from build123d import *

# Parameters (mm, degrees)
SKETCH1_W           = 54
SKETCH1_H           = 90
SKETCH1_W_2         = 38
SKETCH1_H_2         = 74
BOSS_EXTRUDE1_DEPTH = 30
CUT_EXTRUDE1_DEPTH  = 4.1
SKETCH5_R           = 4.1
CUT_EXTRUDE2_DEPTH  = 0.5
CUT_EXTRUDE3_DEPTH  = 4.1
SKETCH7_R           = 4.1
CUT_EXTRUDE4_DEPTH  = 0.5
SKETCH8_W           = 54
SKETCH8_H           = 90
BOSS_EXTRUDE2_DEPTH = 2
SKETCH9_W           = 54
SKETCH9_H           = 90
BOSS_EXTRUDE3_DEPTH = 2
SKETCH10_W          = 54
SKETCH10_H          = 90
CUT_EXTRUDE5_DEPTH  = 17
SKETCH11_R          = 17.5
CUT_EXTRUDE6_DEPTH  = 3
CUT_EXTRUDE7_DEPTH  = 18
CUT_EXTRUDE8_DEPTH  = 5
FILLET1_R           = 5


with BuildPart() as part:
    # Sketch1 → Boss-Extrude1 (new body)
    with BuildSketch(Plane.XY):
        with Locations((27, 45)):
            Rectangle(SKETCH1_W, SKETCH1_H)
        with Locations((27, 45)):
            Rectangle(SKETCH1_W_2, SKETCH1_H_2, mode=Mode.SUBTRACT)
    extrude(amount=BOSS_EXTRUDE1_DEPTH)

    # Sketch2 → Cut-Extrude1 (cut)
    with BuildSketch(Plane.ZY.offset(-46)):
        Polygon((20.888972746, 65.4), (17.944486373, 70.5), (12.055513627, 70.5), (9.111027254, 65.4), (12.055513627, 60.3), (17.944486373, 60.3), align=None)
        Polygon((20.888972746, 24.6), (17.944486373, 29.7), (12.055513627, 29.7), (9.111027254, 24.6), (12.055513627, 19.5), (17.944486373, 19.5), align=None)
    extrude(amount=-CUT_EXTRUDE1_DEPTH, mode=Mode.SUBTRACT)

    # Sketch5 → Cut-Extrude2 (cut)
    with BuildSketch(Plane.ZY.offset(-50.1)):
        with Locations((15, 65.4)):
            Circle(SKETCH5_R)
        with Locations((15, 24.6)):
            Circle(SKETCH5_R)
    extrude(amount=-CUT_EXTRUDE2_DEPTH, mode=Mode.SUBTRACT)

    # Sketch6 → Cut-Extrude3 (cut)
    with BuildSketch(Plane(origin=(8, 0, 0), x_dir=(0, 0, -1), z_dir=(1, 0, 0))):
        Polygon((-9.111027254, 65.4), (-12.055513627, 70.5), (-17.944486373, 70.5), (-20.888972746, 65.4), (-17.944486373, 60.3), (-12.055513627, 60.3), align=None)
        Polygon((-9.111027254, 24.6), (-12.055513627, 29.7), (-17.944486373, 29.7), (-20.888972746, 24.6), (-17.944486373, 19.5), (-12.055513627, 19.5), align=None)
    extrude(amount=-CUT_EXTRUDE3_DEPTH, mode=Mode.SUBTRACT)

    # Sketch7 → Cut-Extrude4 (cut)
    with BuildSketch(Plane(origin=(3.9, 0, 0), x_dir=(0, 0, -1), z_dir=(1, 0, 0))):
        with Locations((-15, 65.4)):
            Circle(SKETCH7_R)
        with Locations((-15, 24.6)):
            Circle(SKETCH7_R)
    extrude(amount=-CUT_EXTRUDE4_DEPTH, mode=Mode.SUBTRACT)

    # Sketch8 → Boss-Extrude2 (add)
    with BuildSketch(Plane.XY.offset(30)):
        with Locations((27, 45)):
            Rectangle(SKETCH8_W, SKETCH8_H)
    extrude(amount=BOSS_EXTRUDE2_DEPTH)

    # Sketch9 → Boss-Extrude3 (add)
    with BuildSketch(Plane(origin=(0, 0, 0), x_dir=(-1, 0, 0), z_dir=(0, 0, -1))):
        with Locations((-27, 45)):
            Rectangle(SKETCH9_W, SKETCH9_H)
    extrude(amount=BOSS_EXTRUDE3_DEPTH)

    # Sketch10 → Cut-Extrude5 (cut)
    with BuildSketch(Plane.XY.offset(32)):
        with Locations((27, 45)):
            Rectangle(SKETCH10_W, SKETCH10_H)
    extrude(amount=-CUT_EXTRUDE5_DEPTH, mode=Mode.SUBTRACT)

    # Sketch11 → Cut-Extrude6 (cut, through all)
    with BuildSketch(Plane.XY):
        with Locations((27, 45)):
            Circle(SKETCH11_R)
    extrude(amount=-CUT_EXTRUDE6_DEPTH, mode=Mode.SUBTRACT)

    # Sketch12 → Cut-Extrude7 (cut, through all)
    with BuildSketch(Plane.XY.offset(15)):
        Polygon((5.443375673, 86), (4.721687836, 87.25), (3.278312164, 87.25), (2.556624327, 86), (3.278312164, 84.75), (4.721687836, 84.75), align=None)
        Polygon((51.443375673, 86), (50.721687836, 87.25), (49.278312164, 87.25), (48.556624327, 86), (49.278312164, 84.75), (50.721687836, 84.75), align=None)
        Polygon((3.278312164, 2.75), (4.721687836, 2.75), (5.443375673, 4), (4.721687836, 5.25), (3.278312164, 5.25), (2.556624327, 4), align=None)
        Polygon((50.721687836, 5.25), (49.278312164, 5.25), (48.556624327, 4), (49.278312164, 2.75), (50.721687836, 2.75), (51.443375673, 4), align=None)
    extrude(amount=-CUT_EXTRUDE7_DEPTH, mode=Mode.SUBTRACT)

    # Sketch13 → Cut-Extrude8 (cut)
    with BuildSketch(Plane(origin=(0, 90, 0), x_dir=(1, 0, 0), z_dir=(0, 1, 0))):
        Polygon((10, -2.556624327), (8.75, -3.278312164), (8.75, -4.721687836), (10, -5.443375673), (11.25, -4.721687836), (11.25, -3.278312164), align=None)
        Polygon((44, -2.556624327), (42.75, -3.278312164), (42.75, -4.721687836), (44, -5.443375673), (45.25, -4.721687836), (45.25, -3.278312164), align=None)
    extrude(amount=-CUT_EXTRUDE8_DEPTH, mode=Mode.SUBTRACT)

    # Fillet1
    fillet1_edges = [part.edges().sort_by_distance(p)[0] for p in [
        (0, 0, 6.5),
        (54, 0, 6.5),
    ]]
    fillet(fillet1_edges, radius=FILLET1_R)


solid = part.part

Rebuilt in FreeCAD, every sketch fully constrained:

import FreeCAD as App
import Part
import Sketcher
Q = App.Units.Quantity


def edges_at(feature, points):
    """Names of the edges that pass closest to the given points."""
    edges = feature.Shape.Edges
    near = lambda p: min(range(len(edges)), key=lambda i: edges[i].distToShape(Part.Vertex(*p))[0])
    return sorted({f"Edge{near(p) + 1}" for p in points})


def add_polygon(sketch, points):
    """Adds a closed chain of lines whose ends are joined by coincident constraints."""
    first, n = sketch.GeometryCount, len(points)
    for a, b in zip(points, points[1:] + points[:1]):
        sketch.addGeometry(Part.LineSegment(App.Vector(*a, 0), App.Vector(*b, 0)), False)
    for i in range(n):
        sketch.addConstraint(Sketcher.Constraint("Coincident", first + i, 2, first + (i + 1) % n, 1))

doc = App.newDocument("Part")
params = doc.addObject("Spreadsheet::Sheet", "Params")
for row, (alias, value) in enumerate([
    ("sketch1_width", "54 mm"),
    ("sketch1_width2", "38 mm"),
    ("sketch1_height", "90 mm"),
    ("sketch1_height2", "74 mm"),
    ("pad1_length", "30 mm"),
    ("pocket1_length", "4.1 mm"),
    ("sketch3_diameter", "8.2 mm"),
    ("pocket2_length", "0.5 mm"),
    ("pocket3_length", "4.1 mm"),
    ("sketch5_diameter", "8.2 mm"),
    ("pocket4_length", "0.5 mm"),
    ("sketch6_width", "54 mm"),
    ("sketch6_height", "90 mm"),
    ("pad2_length", "2 mm"),
    ("sketch7_width", "54 mm"),
    ("sketch7_height", "90 mm"),
    ("pad3_length", "2 mm"),
    ("sketch8_width", "54 mm"),
    ("sketch8_height", "90 mm"),
    ("pocket5_length", "17 mm"),
    ("sketch9_diameter", "35 mm"),
    ("pocket8_length", "5 mm"),
    ("fillet_radius", "5 mm"),
], start=1):
    params.set(f"A{row}", alias)
    params.set(f"B{row}", "=" + value)
    params.setAlias(f"B{row}", alias)

body = doc.addObject("PartDesign::Body", "Body")

# Sketch on XY plane
sketch1 = body.newObject("Sketcher::SketchObject", "Sketch")
sketch1.AttachmentSupport = (doc.getObject("XY_Plane"), [""])
sketch1.MapMode = "FlatFace"
add_polygon(sketch1, [(0, 90), (0, 0), (54, 0), (54, 90)])  # lines 0-3
add_polygon(sketch1, [(46, 8), (8, 8), (8, 82), (46, 82)])  # lines 4-7
sketch1.addConstraint(Sketcher.Constraint("Vertical", 0))
sketch1.addConstraint(Sketcher.Constraint("Horizontal", 1))
sketch1.addConstraint(Sketcher.Constraint("Vertical", 2))
sketch1.addConstraint(Sketcher.Constraint("Horizontal", 3))
sketch1.addConstraint(Sketcher.Constraint("Horizontal", 4))
sketch1.addConstraint(Sketcher.Constraint("Vertical", 5))
sketch1.addConstraint(Sketcher.Constraint("Horizontal", 6))
sketch1.addConstraint(Sketcher.Constraint("Vertical", 7))
sketch1.addConstraint(Sketcher.Constraint("Coincident", 0, 2, -1, 1))
sketch1.addConstraint(Sketcher.Constraint("DistanceX", 1, 1, 1, 2, 54.0))
sketch1.addConstraint(Sketcher.Constraint("DistanceX", 4, 2, 4, 1, 38.0))
sketch1.addConstraint(Sketcher.Constraint("DistanceY", 0, 2, 0, 1, 90.0))
sketch1.addConstraint(Sketcher.Constraint("DistanceY", 5, 1, 5, 2, 74.0))
sketch1.addConstraint(Sketcher.Constraint("DistanceX", -1, 1, 4, 2, 8.0))
sketch1.addConstraint(Sketcher.Constraint("DistanceY", -1, 1, 4, 2, 8.0))
sketch1.setExpression("Constraints[17]", "Params.sketch1_width")
sketch1.setExpression("Constraints[18]", "Params.sketch1_width2")
sketch1.setExpression("Constraints[19]", "Params.sketch1_height")
sketch1.setExpression("Constraints[20]", "Params.sketch1_height2")
pad1 = body.newObject("PartDesign::Pad", "Pad")
pad1.Profile = sketch1
pad1.setExpression("Length", "Params.pad1_length")

# Sketch on YZ plane
sketch2 = body.newObject("Sketcher::SketchObject", "Sketch001")
sketch2.AttachmentSupport = (doc.getObject("YZ_Plane"), [""])
sketch2.MapMode = "FlatFace"
sketch2.AttachmentOffset = App.Placement(App.Vector(0, 0, 46), App.Rotation())
add_polygon(sketch2, [(65.4, 20.888973), (70.5, 17.944486), (70.5, 12.055514), (65.4, 9.111027), (60.3, 12.055514), (60.3, 17.944486)])  # lines 0-5
add_polygon(sketch2, [(24.6, 20.888973), (29.7, 17.944486), (29.7, 12.055514), (24.6, 9.111027), (19.5, 12.055514), (19.5, 17.944486)])  # lines 6-11
sketch2.addConstraint(Sketcher.Constraint("Vertical", 1))
sketch2.addConstraint(Sketcher.Constraint("Vertical", 4))
sketch2.addConstraint(Sketcher.Constraint("Vertical", 7))
sketch2.addConstraint(Sketcher.Constraint("Vertical", 10))
sketch2.addConstraint(Sketcher.Constraint("Parallel", 0, 3))
sketch2.addConstraint(Sketcher.Constraint("Parallel", 2, 5))
sketch2.addConstraint(Sketcher.Constraint("Parallel", 3, 6))
sketch2.addConstraint(Sketcher.Constraint("Parallel", 5, 8))
sketch2.addConstraint(Sketcher.Constraint("Parallel", 6, 9))
sketch2.addConstraint(Sketcher.Constraint("Parallel", 8, 11))
sketch2.addConstraint(Sketcher.Constraint("Horizontal", 1, 2, 3, 2))
sketch2.addConstraint(Sketcher.Constraint("Horizontal", 0, 2, 4, 2))
sketch2.addConstraint(Sketcher.Constraint("Horizontal", 4, 2, 6, 2))
sketch2.addConstraint(Sketcher.Constraint("Horizontal", 3, 2, 7, 2))
sketch2.addConstraint(Sketcher.Constraint("Horizontal", 2, 2, 8, 2))
sketch2.addConstraint(Sketcher.Constraint("Horizontal", 7, 2, 9, 2))
sketch2.addConstraint(Sketcher.Constraint("Horizontal", 6, 2, 10, 2))
sketch2.addConstraint(Sketcher.Constraint("Vertical", 2, 2, 5, 2))
sketch2.addConstraint(Sketcher.Constraint("Angle", 0, Q("-30 deg")))
sketch2.addConstraint(Sketcher.Constraint("DistanceX", -1, 1, 0, 2, 70.5))
sketch2.addConstraint(Sketcher.Constraint("DistanceX", -1, 1, 2, 2, 65.4))
sketch2.addConstraint(Sketcher.Constraint("DistanceX", -1, 1, 6, 2, 29.7))
sketch2.addConstraint(Sketcher.Constraint("DistanceY", 1, 2, 1, 1, 5.888973))
sketch2.addConstraint(Sketcher.Constraint("DistanceY", -1, 1, 0, 2, 17.944486))
pocket1 = body.newObject("PartDesign::Pocket", "Pocket")
pocket1.Profile = sketch2
pocket1.setExpression("Length", "Params.pocket1_length")
pocket1.Reversed = True

# Sketch on YZ plane
sketch3 = body.newObject("Sketcher::SketchObject", "Sketch002")
sketch3.AttachmentSupport = (doc.getObject("YZ_Plane"), [""])
sketch3.MapMode = "FlatFace"
sketch3.AttachmentOffset = App.Placement(App.Vector(0, 0, 50.1), App.Rotation())
sketch3.addGeometry(Part.Circle(App.Vector(65.4, 15, 0), App.Vector(0, 0, 1), 4.1), False)
sketch3.addGeometry(Part.Circle(App.Vector(24.6, 15, 0), App.Vector(0, 0, 1), 4.1), False)
sketch3.addConstraint(Sketcher.Constraint("Equal", 0, 1))
sketch3.addConstraint(Sketcher.Constraint("Horizontal", 0, 3, 1, 3))
sketch3.addConstraint(Sketcher.Constraint("Diameter", 0, 8.2))
sketch3.addConstraint(Sketcher.Constraint("DistanceY", -1, 1, 0, 3, 15.0))
sketch3.addConstraint(Sketcher.Constraint("DistanceX", -1, 1, 0, 3, 65.4))
sketch3.addConstraint(Sketcher.Constraint("DistanceX", -1, 1, 1, 3, 24.6))
sketch3.setExpression("Constraints[2]", "Params.sketch3_diameter")
pocket2 = body.newObject("PartDesign::Pocket", "Pocket001")
pocket2.Profile = sketch3
pocket2.setExpression("Length", "Params.pocket2_length")
pocket2.Reversed = True

# Sketch on YZ plane
sketch4 = body.newObject("Sketcher::SketchObject", "Sketch003")
sketch4.AttachmentSupport = (doc.getObject("YZ_Plane"), [""])
sketch4.MapMode = "FlatFace"
sketch4.AttachmentOffset = App.Placement(App.Vector(0, 0, 8), App.Rotation())
add_polygon(sketch4, [(65.4, 9.111027), (70.5, 12.055514), (70.5, 17.944486), (65.4, 20.888973), (60.3, 17.944486), (60.3, 12.055514)])  # lines 0-5
add_polygon(sketch4, [(24.6, 9.111027), (29.7, 12.055514), (29.7, 17.944486), (24.6, 20.888973), (19.5, 17.944486), (19.5, 12.055514)])  # lines 6-11
sketch4.addConstraint(Sketcher.Constraint("Vertical", 1))
sketch4.addConstraint(Sketcher.Constraint("Vertical", 4))
sketch4.addConstraint(Sketcher.Constraint("Vertical", 7))
sketch4.addConstraint(Sketcher.Constraint("Vertical", 10))
sketch4.addConstraint(Sketcher.Constraint("Parallel", 0, 3))
sketch4.addConstraint(Sketcher.Constraint("Parallel", 2, 5))
sketch4.addConstraint(Sketcher.Constraint("Parallel", 3, 6))
sketch4.addConstraint(Sketcher.Constraint("Parallel", 5, 8))
sketch4.addConstraint(Sketcher.Constraint("Parallel", 6, 9))
sketch4.addConstraint(Sketcher.Constraint("Parallel", 8, 11))
sketch4.addConstraint(Sketcher.Constraint("Horizontal", 1, 2, 3, 2))
sketch4.addConstraint(Sketcher.Constraint("Horizontal", 0, 2, 4, 2))
sketch4.addConstraint(Sketcher.Constraint("Horizontal", 4, 2, 6, 2))
sketch4.addConstraint(Sketcher.Constraint("Horizontal", 3, 2, 7, 2))
sketch4.addConstraint(Sketcher.Constraint("Horizontal", 2, 2, 8, 2))
sketch4.addConstraint(Sketcher.Constraint("Horizontal", 7, 2, 9, 2))
sketch4.addConstraint(Sketcher.Constraint("Horizontal", 6, 2, 10, 2))
sketch4.addConstraint(Sketcher.Constraint("Vertical", 2, 2, 5, 2))
sketch4.addConstraint(Sketcher.Constraint("Angle", 0, Q("30 deg")))
sketch4.addConstraint(Sketcher.Constraint("DistanceX", -1, 1, 0, 2, 70.5))
sketch4.addConstraint(Sketcher.Constraint("DistanceX", -1, 1, 2, 2, 65.4))
sketch4.addConstraint(Sketcher.Constraint("DistanceX", -1, 1, 6, 2, 29.7))
sketch4.addConstraint(Sketcher.Constraint("DistanceY", 1, 1, 1, 2, 5.888973))
sketch4.addConstraint(Sketcher.Constraint("DistanceY", -1, 1, 0, 2, 12.055514))
pocket3 = body.newObject("PartDesign::Pocket", "Pocket002")
pocket3.Profile = sketch4
pocket3.setExpression("Length", "Params.pocket3_length")

# Sketch on YZ plane
sketch5 = body.newObject("Sketcher::SketchObject", "Sketch004")
sketch5.AttachmentSupport = (doc.getObject("YZ_Plane"), [""])
sketch5.MapMode = "FlatFace"
sketch5.AttachmentOffset = App.Placement(App.Vector(0, 0, 3.9), App.Rotation())
sketch5.addGeometry(Part.Circle(App.Vector(65.4, 15, 0), App.Vector(0, 0, 1), 4.1), False)
sketch5.addGeometry(Part.Circle(App.Vector(24.6, 15, 0), App.Vector(0, 0, 1), 4.1), False)
sketch5.addConstraint(Sketcher.Constraint("Equal", 0, 1))
sketch5.addConstraint(Sketcher.Constraint("Horizontal", 0, 3, 1, 3))
sketch5.addConstraint(Sketcher.Constraint("Diameter", 0, 8.2))
sketch5.addConstraint(Sketcher.Constraint("DistanceY", -1, 1, 0, 3, 15.0))
sketch5.addConstraint(Sketcher.Constraint("DistanceX", -1, 1, 0, 3, 65.4))
sketch5.addConstraint(Sketcher.Constraint("DistanceX", -1, 1, 1, 3, 24.6))
sketch5.setExpression("Constraints[2]", "Params.sketch5_diameter")
pocket4 = body.newObject("PartDesign::Pocket", "Pocket003")
pocket4.Profile = sketch5
pocket4.setExpression("Length", "Params.pocket4_length")

# Sketch on XY plane
sketch6 = body.newObject("Sketcher::SketchObject", "Sketch005")
sketch6.AttachmentSupport = (doc.getObject("XY_Plane"), [""])
sketch6.MapMode = "FlatFace"
sketch6.AttachmentOffset = App.Placement(App.Vector(0, 0, 30), App.Rotation())
add_polygon(sketch6, [(0, 90), (0, 0), (54, 0), (54, 90)])  # lines 0-3
sketch6.addConstraint(Sketcher.Constraint("Vertical", 0))
sketch6.addConstraint(Sketcher.Constraint("Horizontal", 1))
sketch6.addConstraint(Sketcher.Constraint("Vertical", 2))
sketch6.addConstraint(Sketcher.Constraint("Horizontal", 3))
sketch6.addConstraint(Sketcher.Constraint("Coincident", 0, 2, -1, 1))
sketch6.addConstraint(Sketcher.Constraint("DistanceX", 1, 1, 1, 2, 54.0))
sketch6.addConstraint(Sketcher.Constraint("DistanceY", 0, 2, 0, 1, 90.0))
sketch6.setExpression("Constraints[9]", "Params.sketch6_width")
sketch6.setExpression("Constraints[10]", "Params.sketch6_height")
pad2 = body.newObject("PartDesign::Pad", "Pad001")
pad2.Profile = sketch6
pad2.setExpression("Length", "Params.pad2_length")

# Sketch on XY plane
sketch7 = body.newObject("Sketcher::SketchObject", "Sketch006")
sketch7.AttachmentSupport = (doc.getObject("XY_Plane"), [""])
sketch7.MapMode = "FlatFace"
add_polygon(sketch7, [(54, 90), (54, 0), (0, 0), (0, 90)])  # lines 0-3
sketch7.addConstraint(Sketcher.Constraint("Vertical", 0))
sketch7.addConstraint(Sketcher.Constraint("Horizontal", 1))
sketch7.addConstraint(Sketcher.Constraint("Vertical", 2))
sketch7.addConstraint(Sketcher.Constraint("Horizontal", 3))
sketch7.addConstraint(Sketcher.Constraint("Coincident", 1, 2, -1, 1))
sketch7.addConstraint(Sketcher.Constraint("DistanceX", 1, 2, 1, 1, 54.0))
sketch7.addConstraint(Sketcher.Constraint("DistanceY", 0, 2, 0, 1, 90.0))
sketch7.setExpression("Constraints[9]", "Params.sketch7_width")
sketch7.setExpression("Constraints[10]", "Params.sketch7_height")
pad3 = body.newObject("PartDesign::Pad", "Pad002")
pad3.Profile = sketch7
pad3.setExpression("Length", "Params.pad3_length")
pad3.Reversed = True

# Sketch on XY plane
sketch8 = body.newObject("Sketcher::SketchObject", "Sketch007")
sketch8.AttachmentSupport = (doc.getObject("XY_Plane"), [""])
sketch8.MapMode = "FlatFace"
sketch8.AttachmentOffset = App.Placement(App.Vector(0, 0, 32), App.Rotation())
add_polygon(sketch8, [(0, 90), (0, 0), (54, 0), (54, 90)])  # lines 0-3
sketch8.addConstraint(Sketcher.Constraint("Vertical", 0))
sketch8.addConstraint(Sketcher.Constraint("Horizontal", 1))
sketch8.addConstraint(Sketcher.Constraint("Vertical", 2))
sketch8.addConstraint(Sketcher.Constraint("Horizontal", 3))
sketch8.addConstraint(Sketcher.Constraint("Coincident", 0, 2, -1, 1))
sketch8.addConstraint(Sketcher.Constraint("DistanceX", 1, 1, 1, 2, 54.0))
sketch8.addConstraint(Sketcher.Constraint("DistanceY", 0, 2, 0, 1, 90.0))
sketch8.setExpression("Constraints[9]", "Params.sketch8_width")
sketch8.setExpression("Constraints[10]", "Params.sketch8_height")
pocket5 = body.newObject("PartDesign::Pocket", "Pocket004")
pocket5.Profile = sketch8
pocket5.setExpression("Length", "Params.pocket5_length")

# Sketch on XY plane
sketch9 = body.newObject("Sketcher::SketchObject", "Sketch008")
sketch9.AttachmentSupport = (doc.getObject("XY_Plane"), [""])
sketch9.MapMode = "FlatFace"
sketch9.addGeometry(Part.Circle(App.Vector(27, 45, 0), App.Vector(0, 0, 1), 17.5), False)
sketch9.addConstraint(Sketcher.Constraint("Diameter", 0, 35.0))
sketch9.addConstraint(Sketcher.Constraint("DistanceX", -1, 1, 0, 3, 27.0))
sketch9.addConstraint(Sketcher.Constraint("DistanceY", -1, 1, 0, 3, 45.0))
sketch9.setExpression("Constraints[0]", "Params.sketch9_diameter")
pocket6 = body.newObject("PartDesign::Pocket", "Pocket005")
pocket6.Profile = sketch9
pocket6.Type = "ThroughAll"

# Sketch on XY plane
sketch10 = body.newObject("Sketcher::SketchObject", "Sketch009")
sketch10.AttachmentSupport = (doc.getObject("XY_Plane"), [""])
sketch10.MapMode = "FlatFace"
sketch10.AttachmentOffset = App.Placement(App.Vector(0, 0, 15), App.Rotation())
add_polygon(sketch10, [(5.443376, 86), (4.721688, 87.25), (3.278312, 87.25), (2.556624, 86), (3.278312, 84.75), (4.721688, 84.75)])  # lines 0-5
add_polygon(sketch10, [(51.443376, 86), (50.721688, 87.25), (49.278312, 87.25), (48.556624, 86), (49.278312, 84.75), (50.721688, 84.75)])  # lines 6-11
add_polygon(sketch10, [(3.278312, 2.75), (4.721688, 2.75), (5.443376, 4), (4.721688, 5.25), (3.278312, 5.25), (2.556624, 4)])  # lines 12-17
add_polygon(sketch10, [(50.721688, 5.25), (49.278312, 5.25), (48.556624, 4), (49.278312, 2.75), (50.721688, 2.75), (51.443376, 4)])  # lines 18-23
sketch10.addConstraint(Sketcher.Constraint("Horizontal", 1))
sketch10.addConstraint(Sketcher.Constraint("Horizontal", 4))
sketch10.addConstraint(Sketcher.Constraint("Horizontal", 7))
sketch10.addConstraint(Sketcher.Constraint("Horizontal", 10))
sketch10.addConstraint(Sketcher.Constraint("Horizontal", 12))
sketch10.addConstraint(Sketcher.Constraint("Horizontal", 15))
sketch10.addConstraint(Sketcher.Constraint("Horizontal", 18))
sketch10.addConstraint(Sketcher.Constraint("Horizontal", 21))
sketch10.addConstraint(Sketcher.Constraint("Parallel", 0, 3))
sketch10.addConstraint(Sketcher.Constraint("Parallel", 2, 5))
sketch10.addConstraint(Sketcher.Constraint("Parallel", 3, 6))
sketch10.addConstraint(Sketcher.Constraint("Parallel", 5, 8))
sketch10.addConstraint(Sketcher.Constraint("Parallel", 6, 9))
sketch10.addConstraint(Sketcher.Constraint("Parallel", 8, 11))
sketch10.addConstraint(Sketcher.Constraint("Parallel", 11, 13))
sketch10.addConstraint(Sketcher.Constraint("Parallel", 9, 14))
sketch10.addConstraint(Sketcher.Constraint("Parallel", 13, 16))
sketch10.addConstraint(Sketcher.Constraint("Parallel", 14, 17))
sketch10.addConstraint(Sketcher.Constraint("Parallel", 16, 19))
sketch10.addConstraint(Sketcher.Constraint("Parallel", 17, 20))
sketch10.addConstraint(Sketcher.Constraint("Parallel", 19, 22))
sketch10.addConstraint(Sketcher.Constraint("Parallel", 20, 23))
sketch10.addConstraint(Sketcher.Constraint("Horizontal", 2, 2, 5, 2))
sketch10.addConstraint(Sketcher.Constraint("Horizontal", 1, 2, 6, 2))
sketch10.addConstraint(Sketcher.Constraint("Horizontal", 5, 2, 8, 2))
sketch10.addConstraint(Sketcher.Constraint("Horizontal", 4, 2, 9, 2))
sketch10.addConstraint(Sketcher.Constraint("Horizontal", 8, 2, 11, 2))
sketch10.addConstraint(Sketcher.Constraint("Horizontal", 13, 2, 16, 2))
sketch10.addConstraint(Sketcher.Constraint("Horizontal", 15, 2, 18, 2))
sketch10.addConstraint(Sketcher.Constraint("Horizontal", 16, 2, 19, 2))
sketch10.addConstraint(Sketcher.Constraint("Horizontal", 17, 2, 20, 2))
sketch10.addConstraint(Sketcher.Constraint("Horizontal", 19, 2, 22, 2))
sketch10.addConstraint(Sketcher.Constraint("Vertical", 1, 2, 3, 2))
sketch10.addConstraint(Sketcher.Constraint("Vertical", 0, 2, 4, 2))
sketch10.addConstraint(Sketcher.Constraint("Vertical", 4, 2, 12, 2))
sketch10.addConstraint(Sketcher.Constraint("Vertical", 5, 2, 13, 2))
sketch10.addConstraint(Sketcher.Constraint("Vertical", 12, 2, 14, 2))
sketch10.addConstraint(Sketcher.Constraint("Vertical", 3, 2, 15, 2))
sketch10.addConstraint(Sketcher.Constraint("Vertical", 9, 2, 18, 2))
sketch10.addConstraint(Sketcher.Constraint("Vertical", 10, 2, 21, 2))
sketch10.addConstraint(Sketcher.Constraint("Equal", 4, 7))
sketch10.addConstraint(Sketcher.Constraint("Angle", 0, Q("120 deg")))
sketch10.addConstraint(Sketcher.Constraint("DistanceY", -1, 1, 2, 2, 86.0))
sketch10.addConstraint(Sketcher.Constraint("DistanceY", -1, 1, 13, 2, 4.0))
sketch10.addConstraint(Sketcher.Constraint("DistanceX", 0, 2, 6, 2, 46.0))
sketch10.addConstraint(Sketcher.Constraint("DistanceY", 3, 2, 1, 2, 2.5))
sketch10.addConstraint(Sketcher.Constraint("DistanceX", 1, 2, 1, 1, 1.443376))
sketch10.addConstraint(Sketcher.Constraint("DistanceX", -1, 1, 0, 2, 4.721688))
pocket7 = body.newObject("PartDesign::Pocket", "Pocket006")
pocket7.Profile = sketch10
pocket7.Type = "ThroughAll"

# Sketch on XZ plane
sketch11 = body.newObject("Sketcher::SketchObject", "Sketch010")
sketch11.AttachmentSupport = (doc.getObject("XZ_Plane"), [""])
sketch11.MapMode = "FlatFace"
sketch11.AttachmentOffset = App.Placement(App.Vector(0, 0, -90), App.Rotation())
add_polygon(sketch11, [(10, 2.556624), (8.75, 3.278312), (8.75, 4.721688), (10, 5.443376), (11.25, 4.721688), (11.25, 3.278312)])  # lines 0-5
add_polygon(sketch11, [(44, 2.556624), (42.75, 3.278312), (42.75, 4.721688), (44, 5.443376), (45.25, 4.721688), (45.25, 3.278312)])  # lines 6-11
sketch11.addConstraint(Sketcher.Constraint("Vertical", 1))
sketch11.addConstraint(Sketcher.Constraint("Vertical", 4))
sketch11.addConstraint(Sketcher.Constraint("Vertical", 7))
sketch11.addConstraint(Sketcher.Constraint("Vertical", 10))
sketch11.addConstraint(Sketcher.Constraint("Parallel", 0, 3))
sketch11.addConstraint(Sketcher.Constraint("Parallel", 2, 5))
sketch11.addConstraint(Sketcher.Constraint("Parallel", 3, 6))
sketch11.addConstraint(Sketcher.Constraint("Parallel", 5, 8))
sketch11.addConstraint(Sketcher.Constraint("Parallel", 6, 9))
sketch11.addConstraint(Sketcher.Constraint("Parallel", 8, 11))
sketch11.addConstraint(Sketcher.Constraint("Horizontal", 1, 2, 3, 2))
sketch11.addConstraint(Sketcher.Constraint("Horizontal", 0, 2, 4, 2))
sketch11.addConstraint(Sketcher.Constraint("Horizontal", 4, 2, 6, 2))
sketch11.addConstraint(Sketcher.Constraint("Horizontal", 3, 2, 7, 2))
sketch11.addConstraint(Sketcher.Constraint("Horizontal", 2, 2, 8, 2))
sketch11.addConstraint(Sketcher.Constraint("Horizontal", 7, 2, 9, 2))
sketch11.addConstraint(Sketcher.Constraint("Horizontal", 6, 2, 10, 2))
sketch11.addConstraint(Sketcher.Constraint("Vertical", 2, 2, 5, 2))
sketch11.addConstraint(Sketcher.Constraint("Angle", 0, Q("150 deg")))
sketch11.addConstraint(Sketcher.Constraint("DistanceX", -1, 1, 2, 2, 10.0))
sketch11.addConstraint(Sketcher.Constraint("DistanceX", -1, 1, 8, 2, 44.0))
sketch11.addConstraint(Sketcher.Constraint("DistanceX", 1, 2, 3, 2, 2.5))
sketch11.addConstraint(Sketcher.Constraint("DistanceY", 1, 1, 1, 2, 1.443376))
sketch11.addConstraint(Sketcher.Constraint("DistanceY", -1, 1, 0, 2, 3.278312))
pocket8 = body.newObject("PartDesign::Pocket", "Pocket007")
pocket8.Profile = sketch11
pocket8.setExpression("Length", "Params.pocket8_length")
pocket8.Reversed = True
doc.recompute()

fillet = body.newObject("PartDesign::Fillet", "Fillet")
fillet.Base = (pocket8, edges_at(pocket8, [(0, 0, 6.5), (54, 0, 6.5)]))
fillet.setExpression("Radius", "Params.fillet_radius")

doc.recompute()
